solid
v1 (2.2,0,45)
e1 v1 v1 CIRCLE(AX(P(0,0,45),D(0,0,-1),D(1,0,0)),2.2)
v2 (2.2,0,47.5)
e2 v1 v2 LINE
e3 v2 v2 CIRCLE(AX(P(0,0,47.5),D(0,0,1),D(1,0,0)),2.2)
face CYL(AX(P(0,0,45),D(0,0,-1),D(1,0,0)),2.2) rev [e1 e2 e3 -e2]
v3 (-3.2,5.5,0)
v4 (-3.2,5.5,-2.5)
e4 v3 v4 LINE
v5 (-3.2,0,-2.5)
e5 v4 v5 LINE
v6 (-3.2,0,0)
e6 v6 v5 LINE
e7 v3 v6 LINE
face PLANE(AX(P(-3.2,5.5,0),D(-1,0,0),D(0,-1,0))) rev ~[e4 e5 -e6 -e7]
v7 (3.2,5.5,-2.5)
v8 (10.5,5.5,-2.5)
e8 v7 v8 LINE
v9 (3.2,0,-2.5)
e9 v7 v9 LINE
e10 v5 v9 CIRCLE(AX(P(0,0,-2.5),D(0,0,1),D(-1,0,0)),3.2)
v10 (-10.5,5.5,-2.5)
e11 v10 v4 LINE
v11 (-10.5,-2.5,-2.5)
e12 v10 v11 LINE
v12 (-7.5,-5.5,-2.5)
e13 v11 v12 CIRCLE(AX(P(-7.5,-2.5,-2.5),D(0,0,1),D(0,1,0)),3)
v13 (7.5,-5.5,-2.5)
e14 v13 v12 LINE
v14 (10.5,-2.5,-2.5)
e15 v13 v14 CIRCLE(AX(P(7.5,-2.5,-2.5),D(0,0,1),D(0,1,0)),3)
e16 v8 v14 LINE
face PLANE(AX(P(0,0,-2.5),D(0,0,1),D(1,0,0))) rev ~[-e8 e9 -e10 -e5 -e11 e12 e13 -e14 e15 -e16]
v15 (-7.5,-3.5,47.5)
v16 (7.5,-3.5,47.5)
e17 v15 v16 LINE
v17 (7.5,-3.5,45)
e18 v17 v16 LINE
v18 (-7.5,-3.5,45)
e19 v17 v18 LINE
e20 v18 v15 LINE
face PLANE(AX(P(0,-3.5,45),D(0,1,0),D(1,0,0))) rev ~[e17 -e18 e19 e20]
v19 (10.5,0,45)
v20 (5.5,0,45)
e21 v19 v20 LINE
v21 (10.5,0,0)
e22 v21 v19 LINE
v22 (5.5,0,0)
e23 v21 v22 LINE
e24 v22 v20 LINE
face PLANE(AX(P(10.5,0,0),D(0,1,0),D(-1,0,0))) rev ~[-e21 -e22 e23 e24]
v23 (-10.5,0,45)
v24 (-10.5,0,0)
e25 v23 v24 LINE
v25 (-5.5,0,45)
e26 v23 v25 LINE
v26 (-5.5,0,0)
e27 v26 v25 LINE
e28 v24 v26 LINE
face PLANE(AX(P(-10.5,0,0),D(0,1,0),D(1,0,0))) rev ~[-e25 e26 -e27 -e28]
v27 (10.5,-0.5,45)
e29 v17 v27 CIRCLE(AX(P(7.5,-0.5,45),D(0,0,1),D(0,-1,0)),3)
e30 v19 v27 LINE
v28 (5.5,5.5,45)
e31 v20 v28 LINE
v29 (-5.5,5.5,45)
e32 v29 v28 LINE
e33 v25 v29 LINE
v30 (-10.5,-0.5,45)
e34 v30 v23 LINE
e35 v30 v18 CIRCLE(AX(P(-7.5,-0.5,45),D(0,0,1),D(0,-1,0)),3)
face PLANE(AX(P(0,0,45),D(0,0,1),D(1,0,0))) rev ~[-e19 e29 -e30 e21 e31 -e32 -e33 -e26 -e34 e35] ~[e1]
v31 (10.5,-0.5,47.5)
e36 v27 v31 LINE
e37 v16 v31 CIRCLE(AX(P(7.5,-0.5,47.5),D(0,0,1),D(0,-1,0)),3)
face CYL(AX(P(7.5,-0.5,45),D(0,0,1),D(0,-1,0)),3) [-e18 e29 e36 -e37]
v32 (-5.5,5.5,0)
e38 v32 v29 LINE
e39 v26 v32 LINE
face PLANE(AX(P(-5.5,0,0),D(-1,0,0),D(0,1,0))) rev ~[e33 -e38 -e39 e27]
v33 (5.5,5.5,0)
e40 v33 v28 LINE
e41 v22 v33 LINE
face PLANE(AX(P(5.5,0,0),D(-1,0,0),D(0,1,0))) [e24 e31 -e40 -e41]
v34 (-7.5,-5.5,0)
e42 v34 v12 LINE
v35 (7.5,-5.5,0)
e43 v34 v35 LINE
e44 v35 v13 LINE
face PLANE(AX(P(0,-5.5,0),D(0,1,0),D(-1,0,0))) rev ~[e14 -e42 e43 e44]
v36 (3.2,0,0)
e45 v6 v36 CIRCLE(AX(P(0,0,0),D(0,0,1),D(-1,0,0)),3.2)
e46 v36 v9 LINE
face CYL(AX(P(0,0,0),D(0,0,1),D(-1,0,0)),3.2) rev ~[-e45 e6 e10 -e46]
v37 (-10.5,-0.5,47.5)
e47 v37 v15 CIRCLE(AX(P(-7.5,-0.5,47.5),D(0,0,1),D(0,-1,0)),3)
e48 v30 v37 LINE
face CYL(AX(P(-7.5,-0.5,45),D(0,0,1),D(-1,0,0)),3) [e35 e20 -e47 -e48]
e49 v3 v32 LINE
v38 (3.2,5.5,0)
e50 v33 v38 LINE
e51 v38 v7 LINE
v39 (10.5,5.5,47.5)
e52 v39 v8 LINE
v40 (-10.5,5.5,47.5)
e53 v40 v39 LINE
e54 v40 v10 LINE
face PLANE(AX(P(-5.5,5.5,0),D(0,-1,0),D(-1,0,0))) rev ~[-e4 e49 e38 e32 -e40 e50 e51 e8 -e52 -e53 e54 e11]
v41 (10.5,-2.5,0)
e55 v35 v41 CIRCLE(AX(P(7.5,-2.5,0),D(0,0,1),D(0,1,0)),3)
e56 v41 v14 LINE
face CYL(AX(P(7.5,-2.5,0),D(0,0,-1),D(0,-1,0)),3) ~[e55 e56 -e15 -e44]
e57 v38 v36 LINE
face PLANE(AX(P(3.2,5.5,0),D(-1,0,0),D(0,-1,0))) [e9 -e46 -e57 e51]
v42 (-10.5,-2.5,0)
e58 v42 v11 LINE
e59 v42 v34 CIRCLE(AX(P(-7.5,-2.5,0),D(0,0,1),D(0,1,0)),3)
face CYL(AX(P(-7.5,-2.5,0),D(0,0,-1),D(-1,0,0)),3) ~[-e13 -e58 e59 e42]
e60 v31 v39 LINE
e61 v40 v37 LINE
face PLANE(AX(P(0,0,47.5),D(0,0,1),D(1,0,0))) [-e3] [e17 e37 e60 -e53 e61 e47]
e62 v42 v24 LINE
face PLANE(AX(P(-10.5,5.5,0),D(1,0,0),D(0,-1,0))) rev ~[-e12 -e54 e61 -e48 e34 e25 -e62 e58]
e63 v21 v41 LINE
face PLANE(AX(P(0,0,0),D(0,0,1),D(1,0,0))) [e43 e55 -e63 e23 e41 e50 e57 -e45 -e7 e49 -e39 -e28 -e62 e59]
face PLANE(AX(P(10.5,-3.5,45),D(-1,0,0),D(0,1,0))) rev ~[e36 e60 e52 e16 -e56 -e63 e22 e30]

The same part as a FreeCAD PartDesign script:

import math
import FreeCAD as App
import Part
import Sketcher


def edges_at(feature, points):
    """Names of the edges that pass closest to the given points."""
    edges = feature.Shape.Edges
    near = lambda p: min(range(len(edges)), key=lambda i: edges[i].distToShape(Part.Vertex(*p))[0])
    return sorted({f"Edge{near(p) + 1}" for p in points})

doc = App.newDocument("Part")
body = doc.addObject("PartDesign::Body", "Body")
body.AllowCompound = True

# Sketch on XY plane
sketch1 = body.newObject("Sketcher::SketchObject", "Sketch")
sketch1.AttachmentSupport = (doc.getObject("XY_Plane"), [""])
sketch1.MapMode = "FlatFace"
sketch1.addGeometry([
    Part.LineSegment(App.Vector(-10, 0, 0), App.Vector(-6, 0, 0)),  # 0
    Part.LineSegment(App.Vector(-6, 0, 0), App.Vector(-6, 6, 0)),  # 1
    Part.LineSegment(App.Vector(-6, 6, 0), App.Vector(-10, 6, 0)),  # 2
    Part.LineSegment(App.Vector(-10, 6, 0), App.Vector(-10, 0, 0)),  # 3
    Part.LineSegment(App.Vector(6, 6, 0), App.Vector(6, 0, 0)),  # 4
    Part.LineSegment(App.Vector(6, 0, 0), App.Vector(10, 0, 0)),  # 5
    Part.LineSegment(App.Vector(10, 0, 0), App.Vector(10, 6, 0)),  # 6
    Part.LineSegment(App.Vector(10, 6, 0), App.Vector(6, 6, 0)),  # 7
], False)
sketch1.addConstraint([
    Sketcher.Constraint("Coincident", 0, 2, 1, 1),
    Sketcher.Constraint("Coincident", 1, 2, 2, 1),
    Sketcher.Constraint("Coincident", 2, 2, 3, 1),
    Sketcher.Constraint("Coincident", 3, 2, 0, 1),
    Sketcher.Constraint("Coincident", 4, 2, 5, 1),
    Sketcher.Constraint("Coincident", 5, 2, 6, 1),
    Sketcher.Constraint("Coincident", 6, 2, 7, 1),
    Sketcher.Constraint("Coincident", 7, 2, 4, 1),
    Sketcher.Constraint("Horizontal", 0),
    Sketcher.Constraint("Vertical", 1),
    Sketcher.Constraint("Horizontal", 2),
    Sketcher.Constraint("Vertical", 3),
    Sketcher.Constraint("Vertical", 4),
    Sketcher.Constraint("Horizontal", 5),
    Sketcher.Constraint("Vertical", 6),
    Sketcher.Constraint("Horizontal", 7),
    Sketcher.Constraint("Symmetric", 0, 2, 4, 2, -1, 1),
    Sketcher.Constraint("Symmetric", 3, 2, 5, 2, -2),
    Sketcher.Constraint("Horizontal", 2, 2, 6, 2),
    Sketcher.Constraint("DistanceX", 0, 1, 0, 2, 5.0),
    Sketcher.Constraint("DistanceX", 0, 2, 4, 2, 11.0),
    Sketcher.Constraint("DistanceY", 1, 1, 1, 2, 5.5),
])
pad1 = body.newObject("PartDesign::Pad", "Pad")
pad1.Profile = sketch1
pad1.Length = 45

# Sketch on XY plane
sketch2 = body.newObject("Sketcher::SketchObject", "Sketch001")
sketch2.AttachmentSupport = (doc.getObject("XY_Plane"), [""])
sketch2.MapMode = "FlatFace"
sketch2.addGeometry([
    Part.ArcOfCircle(Part.Circle(App.Vector(0, 0, 0), App.Vector(0, 0, 1), 3.2), math.radians(180), math.radians(360)),  # 0
    Part.LineSegment(App.Vector(-3.2, 0, 0), App.Vector(-3.2, 5.5, 0)),  # 1
    Part.LineSegment(App.Vector(-3.2, 5.5, 0), App.Vector(-10.5, 5.5, 0)),  # 2
    Part.LineSegment(App.Vector(-10.5, 5.5, 0), App.Vector(-10.5, 0, 0)),  # 3
    Part.LineSegment(App.Vector(-10.5, 0, 0), App.Vector(-5.5, 0, 0)),  # 4
    Part.ArcOfCircle(Part.Circle(App.Vector(0, 0, 0), App.Vector(0, 0, 1), 5.5), math.radians(180), math.radians(360)),  # 5
    Part.LineSegment(App.Vector(5.5, 0, 0), App.Vector(10.5, 0, 0)),  # 6
    Part.LineSegment(App.Vector(10.5, 0, 0), App.Vector(10.5, 5.5, 0)),  # 7
    Part.LineSegment(App.Vector(10.5, 5.5, 0), App.Vector(3.2, 5.5, 0)),  # 8
    Part.LineSegment(App.Vector(3.2, 5.5, 0), App.Vector(3.2, 0, 0)),  # 9
], False)
sketch2.addConstraint([
    Sketcher.Constraint("Tangent", 0, 1, 1, 1),
    Sketcher.Constraint("Coincident", 1, 2, 2, 1),
    Sketcher.Constraint("Coincident", 2, 2, 3, 1),
    Sketcher.Constraint("Coincident", 3, 2, 4, 1),
    Sketcher.Constraint("Coincident", 4, 2, 5, 1),
    Sketcher.Constraint("Coincident", 5, 2, 6, 1),
    Sketcher.Constraint("Coincident", 6, 2, 7, 1),
    Sketcher.Constraint("Coincident", 7, 2, 8, 1),
    Sketcher.Constraint("Coincident", 8, 2, 9, 1),
    Sketcher.Constraint("Tangent", 9, 2, 0, 2),
    Sketcher.Constraint("Vertical", 1),
    Sketcher.Constraint("Horizontal", 2),
    Sketcher.Constraint("Vertical", 3),
    Sketcher.Constraint("Horizontal", 4),
    Sketcher.Constraint("Horizontal", 6),
    Sketcher.Constraint("Vertical", 7),
    Sketcher.Constraint("Horizontal", 8),
    Sketcher.Constraint("Vertical", 9),
    Sketcher.Constraint("Coincident", 0, 3, -1, 1),
    Sketcher.Constraint("Coincident", 5, 3, -1, 1),
    Sketcher.Constraint("Symmetric", 3, 2, 6, 2, -1, 1),
    Sketcher.Constraint("PointOnObject", 3, 2, -1),
    Sketcher.Constraint("Horizontal", 2, 2, 7, 2),
    Sketcher.Constraint("Radius", 0, 3.2),
    Sketcher.Constraint("Radius", 5, 5.5),
    Sketcher.Constraint("DistanceX", 4, 1, 4, 2, 5.0),
    Sketcher.Constraint("DistanceY", 1, 1, 1, 2, 5.5),
])
pad2 = body.newObject("PartDesign::Pad", "Pad001")
pad2.Profile = sketch2
pad2.Length = 2.5
pad2.Reversed = True

# Sketch on XY plane
sketch3 = body.newObject("Sketcher::SketchObject", "Sketch002")
sketch3.AttachmentSupport = (doc.getObject("XY_Plane"), [""])
sketch3.MapMode = "FlatFace"
sketch3.AttachmentOffset = App.Placement(App.Vector(0, 0, 45), App.Rotation())
sketch3.addGeometry([
    Part.LineSegment(App.Vector(10.5, -3.5, 0), App.Vector(10.5, 5.5, 0)),  # 0
    Part.LineSegment(App.Vector(10.5, 5.5, 0), App.Vector(-10.5, 5.5, 0)),  # 1
    Part.LineSegment(App.Vector(-10.5, 5.5, 0), App.Vector(-10.5, -3.5, 0)),  # 2
    Part.LineSegment(App.Vector(-10.5, -3.5, 0), App.Vector(10.5, -3.5, 0)),  # 3
    Part.Circle(App.Vector(0, 0, 0), App.Vector(0, 0, 1), 2.2),  # 4
], False)
sketch3.addConstraint([
    Sketcher.Constraint("Coincident", 0, 2, 1, 1),
    Sketcher.Constraint("Coincident", 1, 2, 2, 1),
    Sketcher.Constraint("Coincident", 2, 2, 3, 1),
    Sketcher.Constraint("Coincident", 3, 2, 0, 1),
    Sketcher.Constraint("Vertical", 0),
    Sketcher.Constraint("Horizontal", 1),
    Sketcher.Constraint("Vertical", 2),
    Sketcher.Constraint("Horizontal", 3),
    Sketcher.Constraint("Coincident", 4, 3, -1, 1),
    Sketcher.Constraint("Diameter", 4, 4.4),
    Sketcher.Constraint("DistanceX", 1, 2, 1, 1, 21.0),
    Sketcher.Constraint("DistanceY", 0, 1, 0, 2, 9.0),
    Sketcher.Constraint("DistanceX", -1, 1, 0, 2, 10.5),
    Sketcher.Constraint("DistanceY", -1, 1, 0, 2, 5.5),
])
pad3 = body.newObject("PartDesign::Pad", "Pad002")
pad3.Profile = sketch3
pad3.Length = 2.5

# Sketch on XY plane
sketch4 = body.newObject("Sketcher::SketchObject", "Sketch003")
sketch4.AttachmentSupport = (doc.getObject("XY_Plane"), [""])
sketch4.MapMode = "FlatFace"
sketch4.addGeometry([
    Part.ArcOfCircle(Part.Circle(App.Vector(0, 0, 0), App.Vector(0, 0, 1), 6), math.radians(180), math.radians(270)),  # 0
    Part.LineSegment(App.Vector(-6, 0, 0), App.Vector(-10, 0, 0)),  # 1
    Part.LineSegment(App.Vector(-10, 0, 0), App.Vector(-10, -6, 0)),  # 2
    Part.LineSegment(App.Vector(-10, -6, 0), App.Vector(0, -6, 0)),  # 3
    Part.LineSegment(App.Vector(10, 0, 0), App.Vector(6, 0, 0)),  # 4
    Part.ArcOfCircle(Part.Circle(App.Vector(0, 0, 0), App.Vector(0, 0, 1), 6), math.radians(-90), math.radians(0)),  # 5
    Part.LineSegment(App.Vector(0, -6, 0), App.Vector(10, -6, 0)),  # 6
    Part.LineSegment(App.Vector(10, -6, 0), App.Vector(10, 0, 0)),  # 7
], False)
sketch4.addConstraint([
    Sketcher.Constraint("Coincident", 0, 1, 1, 1),
    Sketcher.Constraint("Coincident", 1, 2, 2, 1),
    Sketcher.Constraint("Coincident", 2, 2, 3, 1),
    Sketcher.Constraint("Tangent", 3, 2, 0, 2),
    Sketcher.Constraint("Coincident", 4, 2, 5, 2),
    Sketcher.Constraint("Tangent", 5, 1, 6, 1),
    Sketcher.Constraint("Coincident", 6, 2, 7, 1),
    Sketcher.Constraint("Coincident", 7, 2, 4, 1),
    Sketcher.Constraint("Horizontal", 1),
    Sketcher.Constraint("Vertical", 2),
    Sketcher.Constraint("Horizontal", 3),
    Sketcher.Constraint("Horizontal", 4),
    Sketcher.Constraint("Horizontal", 6),
    Sketcher.Constraint("Vertical", 7),
    Sketcher.Constraint("Coincident", 0, 3, -1, 1),
    Sketcher.Constraint("Coincident", 5, 3, -1, 1),
    Sketcher.Constraint("Equal", 0, 5),
    Sketcher.Constraint("Symmetric", 1, 2, 7, 2, -1, 1),
    Sketcher.Constraint("PointOnObject", 0, 1, -1),
    Sketcher.Constraint("Radius", 0, 5.5),
    Sketcher.Constraint("DistanceX", 1, 2, 1, 1, 5.0),
])
pad4 = body.newObject("PartDesign::Pad", "Pad003")
pad4.Profile = sketch4
pad4.Length = 2.5
pad4.Reversed = True
doc.recompute()

fillet = body.newObject("PartDesign::Fillet", "Fillet")
fillet.Base = (pad4, edges_at(pad4, [
    (10.5, -3.5, 46.25),
    (10.5, -5.5, -1.25),
    (-10.5, -3.5, 46.25),
    (-10.5, -5.5, -1.25),
]))
fillet.Radius = 3

doc.recompute()
